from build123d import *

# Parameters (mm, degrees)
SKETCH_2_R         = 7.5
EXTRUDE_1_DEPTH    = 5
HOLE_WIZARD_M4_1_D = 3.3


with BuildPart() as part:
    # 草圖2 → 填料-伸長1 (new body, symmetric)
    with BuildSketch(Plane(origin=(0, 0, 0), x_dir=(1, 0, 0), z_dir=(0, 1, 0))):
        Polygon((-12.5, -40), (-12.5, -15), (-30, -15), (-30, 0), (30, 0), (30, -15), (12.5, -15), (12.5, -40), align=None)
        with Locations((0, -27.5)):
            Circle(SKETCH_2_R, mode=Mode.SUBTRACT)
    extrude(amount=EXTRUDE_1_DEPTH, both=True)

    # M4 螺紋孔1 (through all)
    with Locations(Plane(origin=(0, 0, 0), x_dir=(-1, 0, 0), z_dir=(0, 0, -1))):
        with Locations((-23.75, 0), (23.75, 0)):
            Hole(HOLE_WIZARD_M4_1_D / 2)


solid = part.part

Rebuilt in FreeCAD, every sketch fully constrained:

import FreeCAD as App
import Part
import Sketcher
Q = App.Units.Quantity

doc = App.newDocument("Part")
params = doc.addObject("Spreadsheet::Sheet", "Params")
for row, (alias, value) in enumerate([
    ("sketch1_diameter", "15 mm"),
    ("sketch1_width", "25 mm"),
    ("sketch1_width2", "60 mm"),
    ("sketch1_height", "15 mm"),
    ("pad1_length", "10 mm"),
    ("sketch2_diameter", "3.3 mm"),
    ("hole_diameter", "3.3 mm"),
], start=1):
    params.set(f"A{row}", alias)
    params.set(f"B{row}", "=" + value)
    params.setAlias(f"B{row}", alias)

body = doc.addObject("PartDesign::Body", "Body")

# Sketch on XZ plane
sketch1 = body.newObject("Sketcher::SketchObject", "Sketch")
sketch1.AttachmentSupport = (doc.getObject("XZ_Plane"), [""])
sketch1.MapMode = "FlatFace"
sketch1.addGeometry(Part.LineSegment(App.Vector(-12.5, 15, 0), App.Vector(-12.5, 40, 0)), False)
sketch1.addGeometry(Part.LineSegment(App.Vector(-12.5, 40, 0), App.Vector(12.5, 40, 0)), False)
sketch1.addGeometry(Part.LineSegment(App.Vector(12.5, 40, 0), App.Vector(12.5, 15, 0)), False)
sketch1.addGeometry(Part.LineSegment(App.Vector(12.5, 15, 0), App.Vector(30, 15, 0)), False)
sketch1.addGeometry(Part.LineSegment(App.Vector(30, 15, 0), App.Vector(30, 0, 0)), False)
sketch1.addGeometry(Part.LineSegment(App.Vector(30, 0, 0), App.Vector(-30, 0, 0)), False)
sketch1.addGeometry(Part.LineSegment(App.Vector(-30, 0, 0), App.Vector(-30, 15, 0)), False)
sketch1.addGeometry(Part.LineSegment(App.Vector(-30, 15, 0), App.Vector(-12.5, 15, 0)), False)
sketch1.addGeometry(Part.Circle(App.Vector(0, 27.5, 0), App.Vector(0, 0, 1), 7.5), False)
sketch1.addConstraint(Sketcher.Constraint("Coincident", 0, 2, 1, 1))
sketch1.addConstraint(Sketcher.Constraint("Coincident", 1, 2, 2, 1))
sketch1.addConstraint(Sketcher.Constraint("Coincident", 2, 2, 3, 1))
sketch1.addConstraint(Sketcher.Constraint("Coincident", 3, 2, 4, 1))
sketch1.addConstraint(Sketcher.Constraint("Coincident", 4, 2, 5, 1))
sketch1.addConstraint(Sketcher.Constraint("Coincident", 5, 2, 6, 1))
sketch1.addConstraint(Sketcher.Constraint("Coincident", 6, 2, 7, 1))
sketch1.addConstraint(Sketcher.Constraint("Coincident", 7, 2, 0, 1))
sketch1.addConstraint(Sketcher.Constraint("Vertical", 0))
sketch1.addConstraint(Sketcher.Constraint("Horizontal", 1))
sketch1.addConstraint(Sketcher.Constraint("Vertical", 2))
sketch1.addConstraint(Sketcher.Constraint("Horizontal", 3))
sketch1.addConstraint(Sketcher.Constraint("Vertical", 4))
sketch1.addConstraint(Sketcher.Constraint("Horizontal", 5))
sketch1.addConstraint(Sketcher.Constraint("Vertical", 6))
sketch1.addConstraint(Sketcher.Constraint("Horizontal", 7))
sketch1.addConstraint(Sketcher.Constraint("Symmetric", 4, 2, 5, 2, -1, 1))
sketch1.addConstraint(Sketcher.Constraint("Symmetric", 2, 2, 7, 2, -2))
sketch1.addConstraint(Sketcher.Constraint("PointOnObject", 8, 3, -2))
sketch1.addConstraint(Sketcher.Constraint("Equal", 1, 0))
sketch1.addConstraint(Sketcher.Constraint("Diameter", 8, Q("15 mm")))
sketch1.addConstraint(Sketcher.Constraint("DistanceX", 1, 1, 1, 2, Q("25 mm")))
sketch1.addConstraint(Sketcher.Constraint("DistanceX", 5, 2, 5, 1, Q("60 mm")))
sketch1.addConstraint(Sketcher.Constraint("DistanceY", 4, 2, 4, 1, Q("15 mm")))
sketch1.addConstraint(Sketcher.Constraint("DistanceY", -1, 1, 8, 3, Q("27.5 mm")))
sketch1.setExpression("Constraints[20]", "Params.sketch1_diameter")
sketch1.setExpression("Constraints[21]", "Params.sketch1_width")
sketch1.setExpression("Constraints[22]", "Params.sketch1_width2")
sketch1.setExpression("Constraints[23]", "Params.sketch1_height")
pad1 = body.newObject("PartDesign::Pad", "Pad")
pad1.Profile = sketch1
pad1.setExpression("Length", "Params.pad1_length")
pad1.Midplane = True

# Sketch on XY plane
sketch2 = body.newObject("Sketcher::SketchObject", "Sketch001")
sketch2.AttachmentSupport = (doc.getObject("XY_Plane"), [""])
sketch2.MapMode = "FlatFace"
sketch2.addGeometry(Part.Circle(App.Vector(23.75, 0, 0), App.Vector(0, 0, 1), 1.65), False)
sketch2.addGeometry(Part.Circle(App.Vector(-23.75, 0, 0), App.Vector(0, 0, 1), 1.65), False)
sketch2.addConstraint(Sketcher.Constraint("Equal", 0, 1))
sketch2.addConstraint(Sketcher.Constraint("Symmetric", 0, 3, 1, 3, -1, 1))
sketch2.addConstraint(Sketcher.Constraint("PointOnObject", 0, 3, -1))
sketch2.addConstraint(Sketcher.Constraint("Diameter", 0, Q("3.3 mm")))
sketch2.addConstraint(Sketcher.Constraint("DistanceX", 1, 3, 0, 3, Q("47.5 mm")))
sketch2.setExpression("Constraints[3]", "Params.sketch2_diameter")
doc.recompute()
hole = body.newObject("PartDesign::Hole", "Hole")
hole.Profile = sketch2
hole.ThreadType = "None"
hole.setExpression("Diameter", "Params.hole_diameter")
hole.DepthType = "ThroughAll"
hole.Reversed = True

doc.recompute()
